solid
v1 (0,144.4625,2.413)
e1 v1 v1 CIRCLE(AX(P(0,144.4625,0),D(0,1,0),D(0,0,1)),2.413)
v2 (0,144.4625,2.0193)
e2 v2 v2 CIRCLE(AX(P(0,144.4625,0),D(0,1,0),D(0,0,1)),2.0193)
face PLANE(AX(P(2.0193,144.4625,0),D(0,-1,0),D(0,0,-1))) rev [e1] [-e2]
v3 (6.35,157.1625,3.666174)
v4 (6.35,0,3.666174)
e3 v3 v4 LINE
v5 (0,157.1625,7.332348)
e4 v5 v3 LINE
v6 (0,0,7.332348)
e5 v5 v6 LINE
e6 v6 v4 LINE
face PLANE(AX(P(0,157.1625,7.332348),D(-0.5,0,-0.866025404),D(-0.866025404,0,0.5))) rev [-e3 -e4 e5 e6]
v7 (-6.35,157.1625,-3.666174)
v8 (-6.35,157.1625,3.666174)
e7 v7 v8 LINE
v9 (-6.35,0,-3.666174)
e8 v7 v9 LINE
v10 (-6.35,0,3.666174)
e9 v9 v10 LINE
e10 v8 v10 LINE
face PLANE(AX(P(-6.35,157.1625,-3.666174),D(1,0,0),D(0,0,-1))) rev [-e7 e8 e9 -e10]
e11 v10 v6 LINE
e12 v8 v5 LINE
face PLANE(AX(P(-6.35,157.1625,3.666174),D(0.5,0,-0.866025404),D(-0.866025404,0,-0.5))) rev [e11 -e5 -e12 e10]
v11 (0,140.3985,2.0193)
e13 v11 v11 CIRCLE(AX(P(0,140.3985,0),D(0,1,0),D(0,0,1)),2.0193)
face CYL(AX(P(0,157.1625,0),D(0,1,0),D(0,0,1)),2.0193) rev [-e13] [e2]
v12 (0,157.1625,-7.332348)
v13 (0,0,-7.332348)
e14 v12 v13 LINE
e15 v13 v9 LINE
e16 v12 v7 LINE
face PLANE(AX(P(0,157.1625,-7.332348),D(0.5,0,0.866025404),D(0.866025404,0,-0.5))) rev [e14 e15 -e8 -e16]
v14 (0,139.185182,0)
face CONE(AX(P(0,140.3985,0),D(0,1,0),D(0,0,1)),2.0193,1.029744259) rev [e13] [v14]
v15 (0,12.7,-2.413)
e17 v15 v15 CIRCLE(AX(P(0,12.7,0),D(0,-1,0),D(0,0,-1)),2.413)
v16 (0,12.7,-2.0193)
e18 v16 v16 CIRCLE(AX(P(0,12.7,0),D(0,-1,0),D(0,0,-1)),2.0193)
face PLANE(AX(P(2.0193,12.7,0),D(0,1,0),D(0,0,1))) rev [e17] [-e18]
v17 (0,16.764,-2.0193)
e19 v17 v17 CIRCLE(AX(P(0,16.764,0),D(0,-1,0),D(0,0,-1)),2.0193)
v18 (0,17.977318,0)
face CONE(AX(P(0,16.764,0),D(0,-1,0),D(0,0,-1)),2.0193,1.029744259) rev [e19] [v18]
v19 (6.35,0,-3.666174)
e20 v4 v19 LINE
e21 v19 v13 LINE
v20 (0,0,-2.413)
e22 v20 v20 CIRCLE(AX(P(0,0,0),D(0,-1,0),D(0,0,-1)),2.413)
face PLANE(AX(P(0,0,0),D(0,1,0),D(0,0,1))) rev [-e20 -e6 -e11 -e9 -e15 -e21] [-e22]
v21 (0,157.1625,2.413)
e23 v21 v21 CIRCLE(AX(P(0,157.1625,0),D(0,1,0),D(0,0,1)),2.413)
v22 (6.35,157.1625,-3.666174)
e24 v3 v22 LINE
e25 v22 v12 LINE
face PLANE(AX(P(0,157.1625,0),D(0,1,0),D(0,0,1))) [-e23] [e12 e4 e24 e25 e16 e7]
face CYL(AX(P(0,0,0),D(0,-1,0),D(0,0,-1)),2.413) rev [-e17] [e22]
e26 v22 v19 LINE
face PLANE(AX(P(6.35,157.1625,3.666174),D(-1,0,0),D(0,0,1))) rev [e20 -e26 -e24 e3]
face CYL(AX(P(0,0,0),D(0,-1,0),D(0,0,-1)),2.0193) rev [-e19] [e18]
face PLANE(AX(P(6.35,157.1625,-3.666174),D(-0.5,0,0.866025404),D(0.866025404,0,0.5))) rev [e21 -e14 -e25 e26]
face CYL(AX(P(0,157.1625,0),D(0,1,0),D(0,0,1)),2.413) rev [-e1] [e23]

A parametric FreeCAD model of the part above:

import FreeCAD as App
import Part
import Sketcher
from FreeCAD import Vector
Q = App.Units.Quantity


def add_polygon(sketch, points):
    """Adds a closed chain of lines whose ends are joined by coincident constraints."""
    first, n = sketch.GeometryCount, len(points)
    for a, b in zip(points, points[1:] + points[:1]):
        sketch.addGeometry(Part.LineSegment(App.Vector(*a, 0), App.Vector(*b, 0)), False)
    for i in range(n):
        sketch.addConstraint(Sketcher.Constraint("Coincident", first + i, 2, first + (i + 1) % n, 1))

doc = App.newDocument("Part")
body = doc.addObject("PartDesign::Body", "Body")

sketch1 = body.newObject("Sketcher::SketchObject", "Sketch")
sketch1.AttachmentSupport = (doc.getObject("XZ_Plane"), [""])
sketch1.MapMode = "FlatFace"
add_polygon(sketch1, [(0, -7), (-6, -4), (-6, 4), (0, 7), (6, 4), (6, -4)])
sketch1.addConstraint(Sketcher.Constraint("Vertical", 1))
sketch1.addConstraint(Sketcher.Constraint("Vertical", 4))
sketch1.addConstraint(Sketcher.Constraint("Symmetric", 0, 2, 3, 2, -1, 1))
sketch1.addConstraint(Sketcher.Constraint("Symmetric", 2, 2, 5, 2, -1, 1))
sketch1.addConstraint(Sketcher.Constraint("PointOnObject", 2, 2, -2))
sketch1.addConstraint(Sketcher.Constraint("Parallel", 2, 5))
sketch1.addConstraint(Sketcher.Constraint("Horizontal", 1, 2, 3, 2))
sketch1.addConstraint(Sketcher.Constraint("Angle", 0, Q("150 deg")))
sketch1.addConstraint(Sketcher.Constraint("DistanceX", 1, 2, 3, 2, Q("0.5 in")))
sketch1.addConstraint(Sketcher.Constraint("DistanceY", 1, 1, 1, 2, Q("7.332348 mm")))
pad1 = body.newObject("PartDesign::Pad", "Pad")
pad1.Profile = sketch1
pad1.Length = Q("6.1875 in")
pad1.Reversed = True

sketch2 = body.newObject("Sketcher::SketchObject", "Sketch001")
sketch2.AttachmentSupport = (doc.getObject("XZ_Plane"), [""])
sketch2.MapMode = "FlatFace"
sketch2.AttachmentOffset = App.Placement(Vector(0, 0, -6.1875 * 25.4), App.Rotation())
sketch2.addGeometry(Part.Circle(Vector(0, 0, 0), Vector(0, 0, 1), 2), False)
sketch2.addConstraint(Sketcher.Constraint("Coincident", 0, 3, -1, 1))
sketch2.addConstraint(Sketcher.Constraint("Diameter", 0, Q("0.159 in")))
doc.recompute()
hole = body.newObject("PartDesign::Hole", "Hole")
hole.Profile = sketch2
hole.ThreadType = "None"
hole.Diameter = Q("0.159 in")
hole.DepthType = "Dimension"
hole.Depth = Q("0.66 in")
hole.DrillPoint = "Angled"
hole.DrillPointAngle = 118
hole.HoleCutType = "Counterbore"
hole.HoleCutDiameter = Q("0.19 in")
hole.HoleCutDepth = Q("0.5 in")
hole.Reversed = True

sketch3 = body.newObject("Sketcher::SketchObject", "Sketch002")
sketch3.AttachmentSupport = (doc.getObject("XZ_Plane"), [""])
sketch3.MapMode = "FlatFace"
sketch3.addGeometry(Part.Circle(Vector(0, 0, 0), Vector(0, 0, 1), 2), False)
sketch3.addConstraint(Sketcher.Constraint("Coincident", 0, 3, -1, 1))
sketch3.addConstraint(Sketcher.Constraint("Diameter", 0, Q("0.159 in")))
doc.recompute()
hole2 = body.newObject("PartDesign::Hole", "Hole001")
hole2.Profile = sketch3
hole2.ThreadType = "None"
hole2.Diameter = Q("0.159 in")
hole2.DepthType = "Dimension"
hole2.Depth = Q("0.66 in")
hole2.DrillPoint = "Angled"
hole2.DrillPointAngle = 118
hole2.HoleCutType = "Counterbore"
hole2.HoleCutDiameter = Q("0.19 in")
hole2.HoleCutDepth = Q("0.5 in")

doc.recompute()
